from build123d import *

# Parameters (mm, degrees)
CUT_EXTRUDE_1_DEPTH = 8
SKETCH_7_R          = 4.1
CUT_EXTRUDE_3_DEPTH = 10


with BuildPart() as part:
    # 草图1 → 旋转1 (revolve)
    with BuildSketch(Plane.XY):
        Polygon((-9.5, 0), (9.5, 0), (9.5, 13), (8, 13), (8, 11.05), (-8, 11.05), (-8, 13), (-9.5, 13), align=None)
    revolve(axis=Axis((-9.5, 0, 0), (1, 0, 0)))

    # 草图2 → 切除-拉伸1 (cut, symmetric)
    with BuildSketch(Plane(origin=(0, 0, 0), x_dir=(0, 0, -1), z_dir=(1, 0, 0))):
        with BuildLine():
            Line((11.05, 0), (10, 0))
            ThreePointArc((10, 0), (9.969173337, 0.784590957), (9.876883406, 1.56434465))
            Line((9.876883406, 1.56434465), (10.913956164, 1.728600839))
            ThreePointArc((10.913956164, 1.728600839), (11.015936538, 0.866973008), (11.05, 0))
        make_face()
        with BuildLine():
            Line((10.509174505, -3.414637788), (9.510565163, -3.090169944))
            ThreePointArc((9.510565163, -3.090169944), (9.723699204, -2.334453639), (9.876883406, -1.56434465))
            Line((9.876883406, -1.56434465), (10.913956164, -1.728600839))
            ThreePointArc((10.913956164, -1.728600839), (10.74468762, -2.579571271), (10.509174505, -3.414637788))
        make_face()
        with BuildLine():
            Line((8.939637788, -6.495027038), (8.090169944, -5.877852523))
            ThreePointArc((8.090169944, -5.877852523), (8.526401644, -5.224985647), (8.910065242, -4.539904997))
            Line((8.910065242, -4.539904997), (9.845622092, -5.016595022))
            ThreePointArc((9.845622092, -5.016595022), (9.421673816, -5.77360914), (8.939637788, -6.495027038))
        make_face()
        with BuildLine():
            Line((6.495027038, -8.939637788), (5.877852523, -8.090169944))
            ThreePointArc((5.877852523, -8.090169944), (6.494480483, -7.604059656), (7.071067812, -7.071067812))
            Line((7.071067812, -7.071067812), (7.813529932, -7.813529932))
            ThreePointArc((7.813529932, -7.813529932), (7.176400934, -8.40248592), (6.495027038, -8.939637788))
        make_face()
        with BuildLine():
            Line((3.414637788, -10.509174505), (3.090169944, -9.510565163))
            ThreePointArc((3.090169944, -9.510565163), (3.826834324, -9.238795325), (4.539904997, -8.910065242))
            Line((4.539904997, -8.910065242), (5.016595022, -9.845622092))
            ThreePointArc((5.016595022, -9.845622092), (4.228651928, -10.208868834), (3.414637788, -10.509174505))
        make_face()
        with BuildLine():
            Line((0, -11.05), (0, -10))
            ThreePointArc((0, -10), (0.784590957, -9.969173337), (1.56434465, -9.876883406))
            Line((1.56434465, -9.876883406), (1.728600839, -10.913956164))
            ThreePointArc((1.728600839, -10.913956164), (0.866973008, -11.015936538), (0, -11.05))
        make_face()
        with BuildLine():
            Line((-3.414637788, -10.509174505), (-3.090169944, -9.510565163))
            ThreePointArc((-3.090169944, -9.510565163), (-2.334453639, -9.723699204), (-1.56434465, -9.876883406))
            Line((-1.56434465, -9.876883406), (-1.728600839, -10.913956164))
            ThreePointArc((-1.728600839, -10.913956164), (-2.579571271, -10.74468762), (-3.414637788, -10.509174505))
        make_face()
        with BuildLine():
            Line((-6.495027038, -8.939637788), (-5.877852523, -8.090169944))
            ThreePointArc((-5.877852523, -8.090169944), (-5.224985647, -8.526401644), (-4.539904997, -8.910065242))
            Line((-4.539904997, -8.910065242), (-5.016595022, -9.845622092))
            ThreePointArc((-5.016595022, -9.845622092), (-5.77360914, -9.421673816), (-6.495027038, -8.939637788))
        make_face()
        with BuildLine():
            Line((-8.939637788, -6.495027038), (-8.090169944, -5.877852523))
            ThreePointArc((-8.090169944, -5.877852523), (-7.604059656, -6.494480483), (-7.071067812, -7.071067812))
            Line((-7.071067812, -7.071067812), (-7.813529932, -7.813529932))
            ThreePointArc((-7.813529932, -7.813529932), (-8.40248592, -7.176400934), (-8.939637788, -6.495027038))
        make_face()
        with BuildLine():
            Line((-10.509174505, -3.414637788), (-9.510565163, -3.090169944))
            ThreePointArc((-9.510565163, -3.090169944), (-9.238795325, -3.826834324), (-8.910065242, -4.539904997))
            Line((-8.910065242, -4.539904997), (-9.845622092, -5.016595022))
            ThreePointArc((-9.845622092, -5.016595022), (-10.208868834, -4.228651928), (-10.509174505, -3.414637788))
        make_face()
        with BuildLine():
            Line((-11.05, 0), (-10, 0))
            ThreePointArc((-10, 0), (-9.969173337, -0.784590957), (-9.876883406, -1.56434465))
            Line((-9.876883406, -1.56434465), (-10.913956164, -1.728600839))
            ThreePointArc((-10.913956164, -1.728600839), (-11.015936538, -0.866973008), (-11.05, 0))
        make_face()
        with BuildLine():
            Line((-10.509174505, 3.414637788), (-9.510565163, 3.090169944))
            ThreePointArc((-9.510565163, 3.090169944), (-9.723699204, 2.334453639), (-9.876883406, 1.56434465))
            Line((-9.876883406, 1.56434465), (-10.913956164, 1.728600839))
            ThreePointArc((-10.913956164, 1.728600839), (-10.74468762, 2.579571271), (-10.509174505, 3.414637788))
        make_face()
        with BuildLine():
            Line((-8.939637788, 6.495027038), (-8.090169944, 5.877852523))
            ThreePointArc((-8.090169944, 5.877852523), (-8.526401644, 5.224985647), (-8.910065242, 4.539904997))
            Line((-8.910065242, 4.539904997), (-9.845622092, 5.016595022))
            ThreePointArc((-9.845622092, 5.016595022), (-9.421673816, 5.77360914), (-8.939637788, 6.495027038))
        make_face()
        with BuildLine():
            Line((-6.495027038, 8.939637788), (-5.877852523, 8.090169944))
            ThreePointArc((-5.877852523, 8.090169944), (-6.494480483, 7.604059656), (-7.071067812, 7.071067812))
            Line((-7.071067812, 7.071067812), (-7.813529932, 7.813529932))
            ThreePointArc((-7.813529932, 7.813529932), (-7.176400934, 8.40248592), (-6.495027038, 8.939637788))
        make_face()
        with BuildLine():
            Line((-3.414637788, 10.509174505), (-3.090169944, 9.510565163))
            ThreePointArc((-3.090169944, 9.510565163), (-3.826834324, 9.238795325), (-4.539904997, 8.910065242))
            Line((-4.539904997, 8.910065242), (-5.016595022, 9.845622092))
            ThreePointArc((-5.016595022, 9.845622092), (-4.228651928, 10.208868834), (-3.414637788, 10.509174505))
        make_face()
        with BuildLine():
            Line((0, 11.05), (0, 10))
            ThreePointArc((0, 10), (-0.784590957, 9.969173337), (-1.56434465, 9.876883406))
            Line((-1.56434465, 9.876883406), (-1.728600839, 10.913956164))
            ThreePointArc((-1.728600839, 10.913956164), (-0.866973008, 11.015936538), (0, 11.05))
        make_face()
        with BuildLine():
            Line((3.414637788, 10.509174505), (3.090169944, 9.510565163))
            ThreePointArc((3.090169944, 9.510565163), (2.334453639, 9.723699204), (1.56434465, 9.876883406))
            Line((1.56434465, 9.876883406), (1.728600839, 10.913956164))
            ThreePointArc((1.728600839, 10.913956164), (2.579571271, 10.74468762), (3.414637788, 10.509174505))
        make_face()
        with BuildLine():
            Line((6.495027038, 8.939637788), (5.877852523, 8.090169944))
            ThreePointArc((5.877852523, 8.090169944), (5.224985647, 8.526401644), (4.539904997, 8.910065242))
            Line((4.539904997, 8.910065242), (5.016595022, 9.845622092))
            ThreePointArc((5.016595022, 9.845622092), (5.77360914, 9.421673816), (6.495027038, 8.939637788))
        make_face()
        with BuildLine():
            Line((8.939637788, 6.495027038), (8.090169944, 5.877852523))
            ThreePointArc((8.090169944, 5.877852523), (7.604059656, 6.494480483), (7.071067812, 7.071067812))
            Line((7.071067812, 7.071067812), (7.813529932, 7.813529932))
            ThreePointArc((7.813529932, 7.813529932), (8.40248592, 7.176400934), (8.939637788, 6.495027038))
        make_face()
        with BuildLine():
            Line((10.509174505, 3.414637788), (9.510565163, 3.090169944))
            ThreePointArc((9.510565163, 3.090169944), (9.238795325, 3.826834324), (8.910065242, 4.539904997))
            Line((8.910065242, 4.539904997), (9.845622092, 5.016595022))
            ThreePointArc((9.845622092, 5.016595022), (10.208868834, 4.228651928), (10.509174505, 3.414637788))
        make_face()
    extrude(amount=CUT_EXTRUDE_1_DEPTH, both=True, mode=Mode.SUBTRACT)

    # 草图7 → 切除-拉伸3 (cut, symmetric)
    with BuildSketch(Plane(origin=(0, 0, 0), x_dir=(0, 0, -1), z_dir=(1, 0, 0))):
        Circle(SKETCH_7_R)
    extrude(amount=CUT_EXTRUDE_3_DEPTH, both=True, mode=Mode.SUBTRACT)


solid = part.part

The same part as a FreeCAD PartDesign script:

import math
import FreeCAD as App
import Part
import Sketcher
Q = App.Units.Quantity

doc = App.newDocument("Part")
params = doc.addObject("Spreadsheet::Sheet", "Params")
for row, (alias, value) in enumerate([
    ("sketch1_width", "19 mm"),
    ("sketch1_width2", "16 mm"),
    ("sketch1_height", "13 mm"),
    ("sketch1_height2", "1.95 mm"),
    ("revolution_angle", "360 deg"),
    ("sketch2_radius", "10 mm"),
    ("sketch2_radius2", "11.05 mm"),
    ("pocket1_length", "16 mm"),
    ("sketch3_diameter", "8.2 mm"),
    ("pocket2_length", "20 mm"),
], start=1):
    params.set(f"A{row}", alias)
    params.set(f"B{row}", "=" + value)
    params.setAlias(f"B{row}", alias)

body = doc.addObject("PartDesign::Body", "Body")

# Sketch on XY plane
sketch1 = doc.addObject("Sketcher::SketchObject", "Sketch")
body.addObject(sketch1)
sketch1.AttachmentSupport = (doc.XY_Plane, [""])
sketch1.MapMode = "FlatFace"
sketch1.addGeometry([
    Part.LineSegment(App.Vector(-9.5, 0, 0), App.Vector(9.5, 0, 0)),  # 0
    Part.LineSegment(App.Vector(9.5, 0, 0), App.Vector(9.5, 13, 0)),  # 1
    Part.LineSegment(App.Vector(9.5, 13, 0), App.Vector(8, 13, 0)),  # 2
    Part.LineSegment(App.Vector(8, 13, 0), App.Vector(8, 11.1, 0)),  # 3
    Part.LineSegment(App.Vector(8, 11.1, 0), App.Vector(-8, 11.1, 0)),  # 4
    Part.LineSegment(App.Vector(-8, 11.1, 0), App.Vector(-8, 13, 0)),  # 5
    Part.LineSegment(App.Vector(-8, 13, 0), App.Vector(-9.5, 13, 0)),  # 6
    Part.LineSegment(App.Vector(-9.5, 13, 0), App.Vector(-9.5, 0, 0)),  # 7
], False)
sketch1.addConstraint([
    Sketcher.Constraint("Coincident", 0, 2, 1, 1),
    Sketcher.Constraint("Coincident", 1, 2, 2, 1),
    Sketcher.Constraint("Coincident", 2, 2, 3, 1),
    Sketcher.Constraint("Coincident", 3, 2, 4, 1),
    Sketcher.Constraint("Coincident", 4, 2, 5, 1),
    Sketcher.Constraint("Coincident", 5, 2, 6, 1),
    Sketcher.Constraint("Coincident", 6, 2, 7, 1),
    Sketcher.Constraint("Coincident", 7, 2, 0, 1),
    Sketcher.Constraint("Horizontal", 0),
    Sketcher.Constraint("Vertical", 1),
    Sketcher.Constraint("Horizontal", 2),
    Sketcher.Constraint("Vertical", 3),
    Sketcher.Constraint("Horizontal", 4),
    Sketcher.Constraint("Vertical", 5),
    Sketcher.Constraint("Horizontal", 6),
    Sketcher.Constraint("Vertical", 7),
    Sketcher.Constraint("Symmetric", 0, 2, 7, 2, -1, 1),
    Sketcher.Constraint("Symmetric", 2, 2, 5, 2, -2),
    Sketcher.Constraint("DistanceX", 0, 1, 0, 2, Q("19 mm")),
    Sketcher.Constraint("DistanceX", 4, 2, 4, 1, Q("16 mm")),
    Sketcher.Constraint("DistanceY", 1, 1, 1, 2, Q("13 mm")),
    Sketcher.Constraint("DistanceY", 3, 2, 3, 1, Q("1.95 mm")),
])
sketch1.setExpression("Constraints[18]", "Params.sketch1_width")
sketch1.setExpression("Constraints[19]", "Params.sketch1_width2")
sketch1.setExpression("Constraints[20]", "Params.sketch1_height")
sketch1.setExpression("Constraints[21]", "Params.sketch1_height2")
revolution = doc.addObject("PartDesign::Revolution", "Revolution")
body.addObject(revolution)
revolution.Profile = sketch1
revolution.ReferenceAxis = (sketch1, ["H_Axis"])
revolution.setExpression("Angle", "Params.revolution_angle")

# Sketch on YZ plane
sketch2 = doc.addObject("Sketcher::SketchObject", "Sketch001")
body.addObject(sketch2)
sketch2.AttachmentSupport = (doc.YZ_Plane, [""])
sketch2.MapMode = "FlatFace"
sketch2.addGeometry([
    Part.LineSegment(App.Vector(0, -10, 0), App.Vector(0, -11.1, 0)),  # 0
    Part.ArcOfCircle(Part.Circle(App.Vector(0, 0, 0), App.Vector(0, 0, 1), 11), math.radians(-90), math.radians(-81)),  # 1
    Part.LineSegment(App.Vector(1.7, -10.9, 0), App.Vector(1.6, -9.9, 0)),  # 2
    Part.ArcOfCircle(Part.Circle(App.Vector(0, 0, 0), App.Vector(0, 0, 1), 10), math.radians(-90), math.radians(-81)),  # 3
    Part.LineSegment(App.Vector(-3.1, -9.5, 0), App.Vector(-3.4, -10.5, 0)),  # 4
    Part.ArcOfCircle(Part.Circle(App.Vector(0, 0, 0), App.Vector(0, 0, 1), 11.1), math.radians(-108), math.radians(-99)),  # 5
    Part.LineSegment(App.Vector(-1.7, -10.9, 0), App.Vector(-1.6, -9.9, 0)),  # 6
    Part.ArcOfCircle(Part.Circle(App.Vector(0, 0, 0), App.Vector(0, 0, 1), 10), math.radians(-108), math.radians(-99)),  # 7
    Part.LineSegment(App.Vector(-5.9, -8.1, 0), App.Vector(-6.5, -8.9, 0)),  # 8
    Part.ArcOfCircle(Part.Circle(App.Vector(0, 0, 0), App.Vector(0, 0, 1), 11.1), math.radians(-126), math.radians(-117)),  # 9
    Part.LineSegment(App.Vector(-5, -9.8, 0), App.Vector(-4.5, -8.9, 0)),  # 10
    Part.ArcOfCircle(Part.Circle(App.Vector(0, 0, 0), App.Vector(0, 0, 1), 10), math.radians(-126), math.radians(-117)),  # 11
    Part.LineSegment(App.Vector(-8.1, -5.9, 0), App.Vector(-8.9, -6.5, 0)),  # 12
    Part.ArcOfCircle(Part.Circle(App.Vector(0, 0, 0), App.Vector(0, 0, 1), 11), math.radians(-144), math.radians(-135)),  # 13
    Part.LineSegment(App.Vector(-7.8, -7.8, 0), App.Vector(-7.1, -7.1, 0)),  # 14
    Part.ArcOfCircle(Part.Circle(App.Vector(0, 0, 0), App.Vector(0, 0, 1), 10), math.radians(-144), math.radians(-135)),  # 15
    Part.LineSegment(App.Vector(-9.5, -3.1, 0), App.Vector(-10.5, -3.4, 0)),  # 16
    Part.ArcOfCircle(Part.Circle(App.Vector(0, 0, 0), App.Vector(0, 0, 1), 11), math.radians(-162), math.radians(-153)),  # 17
    Part.LineSegment(App.Vector(-9.8, -5, 0), App.Vector(-8.9, -4.5, 0)),  # 18
    Part.ArcOfCircle(Part.Circle(App.Vector(0, 0, 0), App.Vector(0, 0, 1), 10), math.radians(-162), math.radians(-153)),  # 19
    Part.LineSegment(App.Vector(-10, 0, 0), App.Vector(-11.1, 0, 0)),  # 20
    Part.ArcOfCircle(Part.Circle(App.Vector(0, 0, 0), App.Vector(0, 0, 1), 11), math.radians(180), math.radians(189)),  # 21
    Part.LineSegment(App.Vector(-10.9, -1.7, 0), App.Vector(-9.9, -1.6, 0)),  # 22
    Part.ArcOfCircle(Part.Circle(App.Vector(0, 0, 0), App.Vector(0, 0, 1), 10), math.radians(-180), math.radians(-171)),  # 23
    Part.LineSegment(App.Vector(-9.5, 3.1, 0), App.Vector(-10.5, 3.4, 0)),  # 24
    Part.ArcOfCircle(Part.Circle(App.Vector(0, 0, 0), App.Vector(0, 0, 1), 11.1), math.radians(162), math.radians(171)),  # 25
    Part.LineSegment(App.Vector(-10.9, 1.7, 0), App.Vector(-9.9, 1.6, 0)),  # 26
    Part.ArcOfCircle(Part.Circle(App.Vector(0, 0, 0), App.Vector(0, 0, 1), 10), math.radians(162), math.radians(171)),  # 27
    Part.LineSegment(App.Vector(-8.1, 5.9, 0), App.Vector(-8.9, 6.5, 0)),  # 28
    Part.ArcOfCircle(Part.Circle(App.Vector(0, 0, 0), App.Vector(0, 0, 1), 11.1), math.radians(144), math.radians(153)),  # 29
    Part.LineSegment(App.Vector(-9.8, 5, 0), App.Vector(-8.9, 4.5, 0)),  # 30
    Part.ArcOfCircle(Part.Circle(App.Vector(0, 0, 0), App.Vector(0, 0, 1), 10), math.radians(144), math.radians(153)),  # 31
    Part.LineSegment(App.Vector(-5.9, 8.1, 0), App.Vector(-6.5, 8.9, 0)),  # 32
    Part.ArcOfCircle(Part.Circle(App.Vector(0, 0, 0), App.Vector(0, 0, 1), 11), math.radians(126), math.radians(135)),  # 33
    Part.LineSegment(App.Vector(-7.8, 7.8, 0), App.Vector(-7.1, 7.1, 0)),  # 34
    Part.ArcOfCircle(Part.Circle(App.Vector(0, 0, 0), App.Vector(0, 0, 1), 10), math.radians(126), math.radians(135)),  # 35
    Part.LineSegment(App.Vector(-3.1, 9.5, 0), App.Vector(-3.4, 10.5, 0)),  # 36
    Part.ArcOfCircle(Part.Circle(App.Vector(0, 0, 0), App.Vector(0, 0, 1), 11), math.radians(108), math.radians(117)),  # 37
    Part.LineSegment(App.Vector(-5, 9.8, 0), App.Vector(-4.5, 8.9, 0)),  # 38
    Part.ArcOfCircle(Part.Circle(App.Vector(0, 0, 0), App.Vector(0, 0, 1), 10), math.radians(108), math.radians(117)),  # 39
    Part.LineSegment(App.Vector(0, 10, 0), App.Vector(0, 11.1, 0)),  # 40
    Part.ArcOfCircle(Part.Circle(App.Vector(0, 0, 0), App.Vector(0, 0, 1), 11), math.radians(90), math.radians(99)),  # 41
    Part.LineSegment(App.Vector(-1.7, 10.9, 0), App.Vector(-1.6, 9.9, 0)),  # 42
    Part.ArcOfCircle(Part.Circle(App.Vector(0, 0, 0), App.Vector(0, 0, 1), 10), math.radians(90), math.radians(99)),  # 43
    Part.LineSegment(App.Vector(3.1, 9.5, 0), App.Vector(3.4, 10.5, 0)),  # 44
    Part.ArcOfCircle(Part.Circle(App.Vector(0, 0, 0), App.Vector(0, 0, 1), 11.1), math.radians(72), math.radians(81)),  # 45
    Part.LineSegment(App.Vector(1.7, 10.9, 0), App.Vector(1.6, 9.9, 0)),  # 46
    Part.ArcOfCircle(Part.Circle(App.Vector(0, 0, 0), App.Vector(0, 0, 1), 10), math.radians(72), math.radians(81)),  # 47
    Part.LineSegment(App.Vector(5.9, 8.1, 0), App.Vector(6.5, 8.9, 0)),  # 48
    Part.ArcOfCircle(Part.Circle(App.Vector(0, 0, 0), App.Vector(0, 0, 1), 11.1), math.radians(54), math.radians(63)),  # 49
    Part.LineSegment(App.Vector(5, 9.8, 0), App.Vector(4.5, 8.9, 0)),  # 50
    Part.ArcOfCircle(Part.Circle(App.Vector(0, 0, 0), App.Vector(0, 0, 1), 10), math.radians(54), math.radians(63)),  # 51
    Part.LineSegment(App.Vector(8.1, 5.9, 0), App.Vector(8.9, 6.5, 0)),  # 52
    Part.ArcOfCircle(Part.Circle(App.Vector(0, 0, 0), App.Vector(0, 0, 1), 11), math.radians(36), math.radians(45)),  # 53
    Part.LineSegment(App.Vector(7.8, 7.8, 0), App.Vector(7.1, 7.1, 0)),  # 54
    Part.ArcOfCircle(Part.Circle(App.Vector(0, 0, 0), App.Vector(0, 0, 1), 10), math.radians(36), math.radians(45)),  # 55
    Part.LineSegment(App.Vector(9.5, 3.1, 0), App.Vector(10.5, 3.4, 0)),  # 56
    Part.ArcOfCircle(Part.Circle(App.Vector(0, 0, 0), App.Vector(0, 0, 1), 11), math.radians(18), math.radians(27)),  # 57
    Part.LineSegment(App.Vector(9.8, 5, 0), App.Vector(8.9, 4.5, 0)),  # 58
    Part.ArcOfCircle(Part.Circle(App.Vector(0, 0, 0), App.Vector(0, 0, 1), 10), math.radians(18), math.radians(27)),  # 59
    Part.LineSegment(App.Vector(10, 0, 0), App.Vector(11.1, 0, 0)),  # 60
    Part.ArcOfCircle(Part.Circle(App.Vector(0, 0, 0), App.Vector(0, 0, 1), 11), math.radians(0), math.radians(9)),  # 61
    Part.LineSegment(App.Vector(10.9, 1.7, 0), App.Vector(9.9, 1.6, 0)),  # 62
    Part.ArcOfCircle(Part.Circle(App.Vector(0, 0, 0), App.Vector(0, 0, 1), 10), math.radians(0), math.radians(9)),  # 63
    Part.LineSegment(App.Vector(9.5, -3.1, 0), App.Vector(10.5, -3.4, 0)),  # 64
    Part.ArcOfCircle(Part.Circle(App.Vector(0, 0, 0), App.Vector(0, 0, 1), 11.1), math.radians(-18), math.radians(-9)),  # 65
    Part.LineSegment(App.Vector(10.9, -1.7, 0), App.Vector(9.9, -1.6, 0)),  # 66
    Part.ArcOfCircle(Part.Circle(App.Vector(0, 0, 0), App.Vector(0, 0, 1), 10), math.radians(-18), math.radians(-9)),  # 67
    Part.LineSegment(App.Vector(8.1, -5.9, 0), App.Vector(8.9, -6.5, 0)),  # 68
    Part.ArcOfCircle(Part.Circle(App.Vector(0, 0, 0), App.Vector(0, 0, 1), 11.1), math.radians(-36), math.radians(-27)),  # 69
    Part.LineSegment(App.Vector(9.8, -5, 0), App.Vector(8.9, -4.5, 0)),  # 70
    Part.ArcOfCircle(Part.Circle(App.Vector(0, 0, 0), App.Vector(0, 0, 1), 10), math.radians(-36), math.radians(-27)),  # 71
    Part.LineSegment(App.Vector(5.9, -8.1, 0), App.Vector(6.5, -8.9, 0)),  # 72
    Part.ArcOfCircle(Part.Circle(App.Vector(0, 0, 0), App.Vector(0, 0, 1), 11), math.radians(-54), math.radians(-45)),  # 73
    Part.LineSegment(App.Vector(7.8, -7.8, 0), App.Vector(7.1, -7.1, 0)),  # 74
    Part.ArcOfCircle(Part.Circle(App.Vector(0, 0, 0), App.Vector(0, 0, 1), 10), math.radians(-54), math.radians(-45)),  # 75
    Part.LineSegment(App.Vector(3.1, -9.5, 0), App.Vector(3.4, -10.5, 0)),  # 76
    Part.ArcOfCircle(Part.Circle(App.Vector(0, 0, 0), App.Vector(0, 0, 1), 11), math.radians(-72), math.radians(-63)),  # 77
    Part.LineSegment(App.Vector(5, -9.8, 0), App.Vector(4.5, -8.9, 0)),  # 78
    Part.ArcOfCircle(Part.Circle(App.Vector(0, 0, 0), App.Vector(0, 0, 1), 10), math.radians(-72), math.radians(-63)),  # 79
], False)
sketch2.addConstraint([
    Sketcher.Constraint("Coincident", 0, 2, 1, 1),
    Sketcher.Constraint("Coincident", 1, 2, 2, 1),
    Sketcher.Constraint("Coincident", 2, 2, 3, 2),
    Sketcher.Constraint("Coincident", 3, 1, 0, 1),
    Sketcher.Constraint("Coincident", 4, 2, 5, 1),
    Sketcher.Constraint("Coincident", 5, 2, 6, 1),
    Sketcher.Constraint("Coincident", 6, 2, 7, 2),
    Sketcher.Constraint("Coincident", 7, 1, 4, 1),
    Sketcher.Constraint("Coincident", 8, 2, 9, 1),
    Sketcher.Constraint("Coincident", 9, 2, 10, 1),
    Sketcher.Constraint("Coincident", 10, 2, 11, 2),
    Sketcher.Constraint("Coincident", 11, 1, 8, 1),
    Sketcher.Constraint("Coincident", 12, 2, 13, 1),
    Sketcher.Constraint("Coincident", 13, 2, 14, 1),
    Sketcher.Constraint("Coincident", 14, 2, 15, 2),
    Sketcher.Constraint("Coincident", 15, 1, 12, 1),
    Sketcher.Constraint("Coincident", 16, 2, 17, 1),
    Sketcher.Constraint("Coincident", 17, 2, 18, 1),
    Sketcher.Constraint("Coincident", 18, 2, 19, 2),
    Sketcher.Constraint("Coincident", 19, 1, 16, 1),
    Sketcher.Constraint("Coincident", 20, 2, 21, 1),
    Sketcher.Constraint("Coincident", 21, 2, 22, 1),
    Sketcher.Constraint("Coincident", 22, 2, 23, 2),
    Sketcher.Constraint("Coincident", 23, 1, 20, 1),
    Sketcher.Constraint("Coincident", 24, 2, 25, 1),
    Sketcher.Constraint("Coincident", 25, 2, 26, 1),
    Sketcher.Constraint("Coincident", 26, 2, 27, 2),
    Sketcher.Constraint("Coincident", 27, 1, 24, 1),
    Sketcher.Constraint("Coincident", 28, 2, 29, 1),
    Sketcher.Constraint("Coincident", 29, 2, 30, 1),
    Sketcher.Constraint("Coincident", 30, 2, 31, 2),
    Sketcher.Constraint("Coincident", 31, 1, 28, 1),
    Sketcher.Constraint("Coincident", 32, 2, 33, 1),
    Sketcher.Constraint("Coincident", 33, 2, 34, 1),
    Sketcher.Constraint("Coincident", 34, 2, 35, 2),
    Sketcher.Constraint("Coincident", 35, 1, 32, 1),
    Sketcher.Constraint("Coincident", 36, 2, 37, 1),
    Sketcher.Constraint("Coincident", 37, 2, 38, 1),
    Sketcher.Constraint("Coincident", 38, 2, 39, 2),
    Sketcher.Constraint("Coincident", 39, 1, 36, 1),
    Sketcher.Constraint("Coincident", 40, 2, 41, 1),
    Sketcher.Constraint("Coincident", 41, 2, 42, 1),
    Sketcher.Constraint("Coincident", 42, 2, 43, 2),
    Sketcher.Constraint("Coincident", 43, 1, 40, 1),
    Sketcher.Constraint("Coincident", 44, 2, 45, 1),
    Sketcher.Constraint("Coincident", 45, 2, 46, 1),
    Sketcher.Constraint("Coincident", 46, 2, 47, 2),
    Sketcher.Constraint("Coincident", 47, 1, 44, 1),
    Sketcher.Constraint("Coincident", 48, 2, 49, 1),
    Sketcher.Constraint("Coincident", 49, 2, 50, 1),
    Sketcher.Constraint("Coincident", 50, 2, 51, 2),
    Sketcher.Constraint("Coincident", 51, 1, 48, 1),
    Sketcher.Constraint("Coincident", 52, 2, 53, 1),
    Sketcher.Constraint("Coincident", 53, 2, 54, 1),
    Sketcher.Constraint("Coincident", 54, 2, 55, 2),
    Sketcher.Constraint("Coincident", 55, 1, 52, 1),
    Sketcher.Constraint("Coincident", 56, 2, 57, 1),
    Sketcher.Constraint("Coincident", 57, 2, 58, 1),
    Sketcher.Constraint("Coincident", 58, 2, 59, 2),
    Sketcher.Constraint("Coincident", 59, 1, 56, 1),
    Sketcher.Constraint("Coincident", 60, 2, 61, 1),
    Sketcher.Constraint("Coincident", 61, 2, 62, 1),
    Sketcher.Constraint("Coincident", 62, 2, 63, 2),
    Sketcher.Constraint("Coincident", 63, 1, 60, 1),
    Sketcher.Constraint("Coincident", 64, 2, 65, 1),
    Sketcher.Constraint("Coincident", 65, 2, 66, 1),
    Sketcher.Constraint("Coincident", 66, 2, 67, 2),
    Sketcher.Constraint("Coincident", 67, 1, 64, 1),
    Sketcher.Constraint("Coincident", 68, 2, 69, 1),
    Sketcher.Constraint("Coincident", 69, 2, 70, 1),
    Sketcher.Constraint("Coincident", 70, 2, 71, 2),
    Sketcher.Constraint("Coincident", 71, 1, 68, 1),
    Sketcher.Constraint("Coincident", 72, 2, 73, 1),
    Sketcher.Constraint("Coincident", 73, 2, 74, 1),
    Sketcher.Constraint("Coincident", 74, 2, 75, 2),
    Sketcher.Constraint("Coincident", 75, 1, 72, 1),
    Sketcher.Constraint("Coincident", 76, 2, 77, 1),
    Sketcher.Constraint("Coincident", 77, 2, 78, 1),
    Sketcher.Constraint("Coincident", 78, 2, 79, 2),
    Sketcher.Constraint("Coincident", 79, 1, 76, 1),
    Sketcher.Constraint("Vertical", 0),
    Sketcher.Constraint("Horizontal", 20),
    Sketcher.Constraint("Vertical", 40),
    Sketcher.Constraint("Horizontal", 60),
    Sketcher.Constraint("Coincident", 1, 3, -1, 1),
    Sketcher.Constraint("Coincident", 3, 3, -1, 1),
    Sketcher.Constraint("Coincident", 5, 3, -1, 1),
    Sketcher.Constraint("Coincident", 7, 3, -1, 1),
    Sketcher.Constraint("Coincident", 9, 3, -1, 1),
    Sketcher.Constraint("Coincident", 11, 3, -1, 1),
    Sketcher.Constraint("Coincident", 13, 3, -1, 1),
    Sketcher.Constraint("Coincident", 15, 3, -1, 1),
    Sketcher.Constraint("Coincident", 17, 3, -1, 1),
    Sketcher.Constraint("Coincident", 19, 3, -1, 1),
    Sketcher.Constraint("Coincident", 21, 3, -1, 1),
    Sketcher.Constraint("Coincident", 23, 3, -1, 1),
    Sketcher.Constraint("Coincident", 25, 3, -1, 1),
    Sketcher.Constraint("Coincident", 27, 3, -1, 1),
    Sketcher.Constraint("Coincident", 29, 3, -1, 1),
    Sketcher.Constraint("Coincident", 31, 3, -1, 1),
    Sketcher.Constraint("Coincident", 33, 3, -1, 1),
    Sketcher.Constraint("Coincident", 35, 3, -1, 1),
    Sketcher.Constraint("Coincident", 37, 3, -1, 1),
    Sketcher.Constraint("Coincident", 39, 3, -1, 1),
    Sketcher.Constraint("Coincident", 41, 3, -1, 1),
    Sketcher.Constraint("Coincident", 43, 3, -1, 1),
    Sketcher.Constraint("Coincident", 45, 3, -1, 1),
    Sketcher.Constraint("Coincident", 47, 3, -1, 1),
    Sketcher.Constraint("Coincident", 49, 3, -1, 1),
    Sketcher.Constraint("Coincident", 51, 3, -1, 1),
    Sketcher.Constraint("Coincident", 53, 3, -1, 1),
    Sketcher.Constraint("Coincident", 55, 3, -1, 1),
    Sketcher.Constraint("Coincident", 57, 3, -1, 1),
    Sketcher.Constraint("Coincident", 59, 3, -1, 1),
    Sketcher.Constraint("Coincident", 61, 3, -1, 1),
    Sketcher.Constraint("Coincident", 63, 3, -1, 1),
    Sketcher.Constraint("Coincident", 65, 3, -1, 1),
    Sketcher.Constraint("Coincident", 67, 3, -1, 1),
    Sketcher.Constraint("Coincident", 69, 3, -1, 1),
    Sketcher.Constraint("Coincident", 71, 3, -1, 1),
    Sketcher.Constraint("Coincident", 73, 3, -1, 1),
    Sketcher.Constraint("Coincident", 75, 3, -1, 1),
    Sketcher.Constraint("Coincident", 77, 3, -1, 1),
    Sketcher.Constraint("Coincident", 79, 3, -1, 1),
    Sketcher.Constraint("Equal", 1, 5),
    Sketcher.Constraint("Equal", 3, 7),
    Sketcher.Constraint("Equal", 5, 9),
    Sketcher.Constraint("Equal", 7, 11),
    Sketcher.Constraint("Equal", 9, 13),
    Sketcher.Constraint("Equal", 11, 15),
    Sketcher.Constraint("Equal", 13, 17),
    Sketcher.Constraint("Equal", 15, 19),
    Sketcher.Constraint("Equal", 17, 21),
    Sketcher.Constraint("Equal", 19, 23),
    Sketcher.Constraint("Equal", 21, 25),
    Sketcher.Constraint("Equal", 23, 27),
    Sketcher.Constraint("Equal", 25, 29),
    Sketcher.Constraint("Equal", 27, 31),
    Sketcher.Constraint("Equal", 29, 33),
    Sketcher.Constraint("Equal", 31, 35),
    Sketcher.Constraint("Equal", 33, 37),
    Sketcher.Constraint("Equal", 35, 39),
    Sketcher.Constraint("Equal", 37, 41),
    Sketcher.Constraint("Equal", 39, 43),
    Sketcher.Constraint("Equal", 41, 45),
    Sketcher.Constraint("Equal", 43, 47),
    Sketcher.Constraint("Equal", 45, 49),
    Sketcher.Constraint("Equal", 47, 51),
    Sketcher.Constraint("Equal", 49, 53),
    Sketcher.Constraint("Equal", 51, 55),
    Sketcher.Constraint("Equal", 53, 57),
    Sketcher.Constraint("Equal", 55, 59),
    Sketcher.Constraint("Equal", 57, 61),
    Sketcher.Constraint("Equal", 59, 63),
    Sketcher.Constraint("Equal", 61, 65),
    Sketcher.Constraint("Equal", 63, 67),
    Sketcher.Constraint("Equal", 65, 69),
    Sketcher.Constraint("Equal", 67, 71),
    Sketcher.Constraint("Equal", 69, 73),
    Sketcher.Constraint("Equal", 71, 75),
    Sketcher.Constraint("Equal", 73, 77),
    Sketcher.Constraint("Equal", 75, 79),
    Sketcher.Constraint("PointOnObject", 0, 2, -2),
    Sketcher.Constraint("PointOnObject", 20, 2, -1),
    Sketcher.Constraint("PointOnObject", 40, 2, -2),
    Sketcher.Constraint("PointOnObject", 60, 2, -1),
    Sketcher.Constraint("Perpendicular", 2, 22),
    Sketcher.Constraint("Perpendicular", 4, 24),
    Sketcher.Constraint("Perpendicular", 6, 26),
    Sketcher.Constraint("Perpendicular", 8, 28),
    Sketcher.Constraint("Perpendicular", 10, 30),
    Sketcher.Constraint("Perpendicular", 12, 32),
    Sketcher.Constraint("Perpendicular", 14, 34),
    Sketcher.Constraint("Perpendicular", 16, 36),
    Sketcher.Constraint("Perpendicular", 18, 38),
    Sketcher.Constraint("Perpendicular", 22, 42),
    Sketcher.Constraint("Perpendicular", 24, 44),
    Sketcher.Constraint("Perpendicular", 26, 46),
    Sketcher.Constraint("Perpendicular", 28, 48),
    Sketcher.Constraint("Perpendicular", 30, 50),
    Sketcher.Constraint("Perpendicular", 32, 52),
    Sketcher.Constraint("Perpendicular", 34, 54),
    Sketcher.Constraint("Perpendicular", 36, 56),
    Sketcher.Constraint("Perpendicular", 38, 58),
    Sketcher.Constraint("Perpendicular", 42, 62),
    Sketcher.Constraint("Perpendicular", 44, 64),
    Sketcher.Constraint("Perpendicular", 46, 66),
    Sketcher.Constraint("Perpendicular", 48, 68),
    Sketcher.Constraint("Perpendicular", 50, 70),
    Sketcher.Constraint("Perpendicular", 52, 72),
    Sketcher.Constraint("Perpendicular", 54, 74),
    Sketcher.Constraint("Perpendicular", 56, 76),
    Sketcher.Constraint("Perpendicular", 58, 78),
    Sketcher.Constraint("Horizontal", 1, 2, 5, 2),
    Sketcher.Constraint("Horizontal", 2, 2, 6, 2),
    Sketcher.Constraint("Horizontal", 36, 2, 44, 2),
    Sketcher.Constraint("Horizontal", 41, 2, 45, 2),
    Sketcher.Constraint("Horizontal", 39, 1, 47, 1),
    Sketcher.Constraint("Horizontal", 32, 2, 48, 2),
    Sketcher.Constraint("Horizontal", 37, 2, 49, 2),
    Sketcher.Constraint("Horizontal", 38, 2, 50, 2),
    Sketcher.Constraint("Horizontal", 35, 1, 51, 1),
    Sketcher.Constraint("Horizontal", 28, 2, 52, 2),
    Sketcher.Constraint("Horizontal", 33, 2, 53, 2),
    Sketcher.Constraint("Horizontal", 34, 2, 54, 2),
    Sketcher.Constraint("Horizontal", 24, 2, 56, 2),
    Sketcher.Constraint("Horizontal", 29, 2, 57, 2),
    Sketcher.Constraint("Horizontal", 25, 2, 61, 2),
    Sketcher.Constraint("Horizontal", 16, 2, 64, 2),
    Sketcher.Constraint("Horizontal", 21, 2, 65, 2),
    Sketcher.Constraint("Horizontal", 12, 2, 68, 2),
    Sketcher.Constraint("Horizontal", 17, 2, 69, 2),
    Sketcher.Constraint("Horizontal", 8, 2, 72, 2),
    Sketcher.Constraint("Horizontal", 13, 2, 73, 2),
    Sketcher.Constraint("Horizontal", 4, 2, 76, 2),
    Sketcher.Constraint("Horizontal", 9, 2, 77, 2),
    Sketcher.Constraint("Vertical", 16, 2, 24, 2),
    Sketcher.Constraint("Vertical", 21, 2, 25, 2),
    Sketcher.Constraint("Vertical", 12, 2, 28, 2),
    Sketcher.Constraint("Vertical", 17, 2, 29, 2),
    Sketcher.Constraint("Vertical", 8, 2, 32, 2),
    Sketcher.Constraint("Vertical", 13, 2, 33, 2),
    Sketcher.Constraint("Vertical", 4, 2, 36, 2),
    Sketcher.Constraint("Vertical", 9, 2, 37, 2),
    Sketcher.Constraint("Vertical", 5, 2, 41, 2),
    Sketcher.Constraint("Radius", 3, Q("10 mm")),
    Sketcher.Constraint("Angle", 2, Q("99 deg")),
    Sketcher.Constraint("Angle", 4, Q("-108 deg")),
    Sketcher.Constraint("Angle", 8, Q("-126 deg")),
    Sketcher.Constraint("Angle", 10, Q("63 deg")),
    Sketcher.Constraint("Radius", 1, Q("11.05 mm")),
    Sketcher.Constraint("DistanceX", -1, 1, 1, 2, Q("1.728601 mm")),
    Sketcher.Constraint("DistanceY", 21, 2, -1, 1, Q("1.728601 mm")),
    Sketcher.Constraint("DistanceX", 7, 1, -1, 1, Q("3.09017 mm")),
    Sketcher.Constraint("DistanceY", 11, 1, -1, 1, Q("8.09017 mm")),
    Sketcher.Constraint("DistanceX", 13, 2, -1, 1, Q("7.81353 mm")),
    Sketcher.Constraint("DistanceX", 15, 1, -1, 1, Q("8.09017 mm")),
    Sketcher.Constraint("DistanceY", 19, 1, -1, 1, Q("3.09017 mm")),
    Sketcher.Constraint("DistanceX", 9, 2, -1, 1, Q("5.016595 mm")),
    Sketcher.Constraint("DistanceX", 17, 2, -1, 1, Q("9.845622 mm")),
])
sketch2.setExpression("Constraints[225]", "Params.sketch2_radius")
sketch2.setExpression("Constraints[230]", "Params.sketch2_radius2")
pocket1 = doc.addObject("PartDesign::Pocket", "Pocket")
body.addObject(pocket1)
pocket1.Profile = sketch2
pocket1.setExpression("Length", "Params.pocket1_length")
pocket1.Midplane = True

# Sketch on YZ plane
sketch3 = doc.addObject("Sketcher::SketchObject", "Sketch002")
body.addObject(sketch3)
sketch3.AttachmentSupport = (doc.YZ_Plane, [""])
sketch3.MapMode = "FlatFace"
sketch3.addGeometry(Part.Circle(App.Vector(0, 0, 0), App.Vector(0, 0, 1), 4.1), False)
sketch3.addConstraint([
    Sketcher.Constraint("Coincident", 0, 3, -1, 1),
    Sketcher.Constraint("Diameter", 0, Q("8.2 mm")),
])
sketch3.setExpression("Constraints[1]", "Params.sketch3_diameter")
pocket2 = doc.addObject("PartDesign::Pocket", "Pocket001")
body.addObject(pocket2)
pocket2.Profile = sketch3
pocket2.setExpression("Length", "Params.pocket2_length")
pocket2.Midplane = True

doc.recompute()
